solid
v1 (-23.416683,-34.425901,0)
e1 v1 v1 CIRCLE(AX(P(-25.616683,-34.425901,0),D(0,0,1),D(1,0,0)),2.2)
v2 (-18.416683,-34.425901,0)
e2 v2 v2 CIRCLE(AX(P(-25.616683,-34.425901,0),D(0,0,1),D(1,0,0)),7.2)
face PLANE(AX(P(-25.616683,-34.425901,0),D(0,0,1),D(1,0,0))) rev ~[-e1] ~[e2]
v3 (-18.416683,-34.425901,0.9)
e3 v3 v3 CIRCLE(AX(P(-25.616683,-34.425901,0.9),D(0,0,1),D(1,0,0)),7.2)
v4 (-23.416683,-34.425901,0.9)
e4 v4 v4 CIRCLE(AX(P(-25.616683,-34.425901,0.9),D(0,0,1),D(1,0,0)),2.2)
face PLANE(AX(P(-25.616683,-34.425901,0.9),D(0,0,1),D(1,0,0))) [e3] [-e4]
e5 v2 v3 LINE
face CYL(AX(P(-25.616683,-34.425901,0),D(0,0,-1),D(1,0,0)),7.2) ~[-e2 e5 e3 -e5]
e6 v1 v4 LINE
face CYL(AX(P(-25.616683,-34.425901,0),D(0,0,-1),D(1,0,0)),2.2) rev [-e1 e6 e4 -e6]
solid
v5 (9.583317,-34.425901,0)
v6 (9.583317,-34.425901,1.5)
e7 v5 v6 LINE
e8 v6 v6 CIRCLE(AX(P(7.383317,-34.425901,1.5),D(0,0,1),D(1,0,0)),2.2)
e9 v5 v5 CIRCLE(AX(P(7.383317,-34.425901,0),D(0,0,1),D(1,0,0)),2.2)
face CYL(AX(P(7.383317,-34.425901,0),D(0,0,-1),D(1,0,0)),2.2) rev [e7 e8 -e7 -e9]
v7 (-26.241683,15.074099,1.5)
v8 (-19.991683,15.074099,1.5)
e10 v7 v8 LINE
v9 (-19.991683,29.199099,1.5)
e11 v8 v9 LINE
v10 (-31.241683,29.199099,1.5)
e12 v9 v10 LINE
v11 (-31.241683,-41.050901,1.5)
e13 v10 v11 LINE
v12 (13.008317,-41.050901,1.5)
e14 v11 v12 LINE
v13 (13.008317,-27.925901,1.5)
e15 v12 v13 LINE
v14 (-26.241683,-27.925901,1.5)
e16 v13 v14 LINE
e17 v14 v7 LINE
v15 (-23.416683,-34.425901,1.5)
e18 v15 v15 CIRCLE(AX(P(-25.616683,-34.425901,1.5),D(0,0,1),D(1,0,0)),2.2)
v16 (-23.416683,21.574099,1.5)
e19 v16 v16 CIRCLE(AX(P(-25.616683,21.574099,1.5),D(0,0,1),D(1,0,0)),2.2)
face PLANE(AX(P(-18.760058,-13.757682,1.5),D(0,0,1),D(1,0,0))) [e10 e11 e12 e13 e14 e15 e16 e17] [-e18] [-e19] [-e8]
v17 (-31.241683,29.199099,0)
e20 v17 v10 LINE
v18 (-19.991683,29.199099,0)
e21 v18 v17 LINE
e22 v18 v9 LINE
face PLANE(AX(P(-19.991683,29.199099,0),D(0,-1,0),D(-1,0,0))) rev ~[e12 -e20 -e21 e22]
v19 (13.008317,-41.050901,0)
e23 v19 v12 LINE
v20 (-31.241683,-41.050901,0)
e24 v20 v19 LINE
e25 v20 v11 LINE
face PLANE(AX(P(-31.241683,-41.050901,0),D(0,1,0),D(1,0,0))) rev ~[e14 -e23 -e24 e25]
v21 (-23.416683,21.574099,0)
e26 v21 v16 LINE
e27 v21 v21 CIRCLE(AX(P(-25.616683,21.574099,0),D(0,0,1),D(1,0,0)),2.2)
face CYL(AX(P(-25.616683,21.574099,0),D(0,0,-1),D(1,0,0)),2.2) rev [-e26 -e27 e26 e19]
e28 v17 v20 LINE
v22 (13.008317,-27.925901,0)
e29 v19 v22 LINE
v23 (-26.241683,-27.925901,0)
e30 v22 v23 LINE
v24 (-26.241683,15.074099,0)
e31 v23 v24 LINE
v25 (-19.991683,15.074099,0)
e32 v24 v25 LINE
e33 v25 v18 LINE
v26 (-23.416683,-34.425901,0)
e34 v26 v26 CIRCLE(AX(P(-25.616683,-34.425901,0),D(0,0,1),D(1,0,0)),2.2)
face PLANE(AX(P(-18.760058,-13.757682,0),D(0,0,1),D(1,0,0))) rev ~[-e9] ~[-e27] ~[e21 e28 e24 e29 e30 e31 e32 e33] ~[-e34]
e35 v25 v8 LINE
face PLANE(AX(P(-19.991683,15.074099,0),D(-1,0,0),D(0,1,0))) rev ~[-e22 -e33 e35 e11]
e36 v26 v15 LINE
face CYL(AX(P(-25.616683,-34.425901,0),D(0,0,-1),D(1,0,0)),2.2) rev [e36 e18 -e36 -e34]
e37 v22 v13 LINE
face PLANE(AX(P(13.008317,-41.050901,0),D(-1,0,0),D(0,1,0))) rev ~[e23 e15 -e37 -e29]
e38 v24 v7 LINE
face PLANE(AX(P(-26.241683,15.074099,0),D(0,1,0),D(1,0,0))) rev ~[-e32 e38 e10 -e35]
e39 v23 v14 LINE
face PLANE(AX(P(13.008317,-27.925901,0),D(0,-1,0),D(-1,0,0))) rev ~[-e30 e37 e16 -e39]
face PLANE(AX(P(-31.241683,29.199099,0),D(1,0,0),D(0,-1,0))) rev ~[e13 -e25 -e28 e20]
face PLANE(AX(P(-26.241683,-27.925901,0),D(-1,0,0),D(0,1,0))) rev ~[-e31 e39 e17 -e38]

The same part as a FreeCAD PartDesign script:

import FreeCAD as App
import Part
import Sketcher

doc = App.newDocument("Part")
body = doc.addObject("PartDesign::Body", "Body")

# Sketch on XY plane
sketch1 = body.newObject("Sketcher::SketchObject", "Sketch")
sketch1.AttachmentSupport = (doc.getObject("XY_Plane"), [""])
sketch1.MapMode = "FlatFace"
sketch1.addGeometry([
    Part.LineSegment(App.Vector(-20, 29.2, 0), App.Vector(-31.2, 29.2, 0)),  # 0
    Part.LineSegment(App.Vector(-31.2, 29.2, 0), App.Vector(-31.2, -41.1, 0)),  # 1
    Part.LineSegment(App.Vector(-31.2, -41.1, 0), App.Vector(13, -41.1, 0)),  # 2
    Part.LineSegment(App.Vector(13, -41.1, 0), App.Vector(13, -27.9, 0)),  # 3
    Part.LineSegment(App.Vector(13, -27.9, 0), App.Vector(-26.2, -27.9, 0)),  # 4
    Part.LineSegment(App.Vector(-26.2, -27.9, 0), App.Vector(-26.2, 15.1, 0)),  # 5
    Part.LineSegment(App.Vector(-26.2, 15.1, 0), App.Vector(-20, 15.1, 0)),  # 6
    Part.LineSegment(App.Vector(-20, 15.1, 0), App.Vector(-20, 29.2, 0)),  # 7
    Part.Circle(App.Vector(-25.6, -34.4, 0), App.Vector(0, 0, 1), 2.2),  # 8
    Part.Circle(App.Vector(7.4, -34.4, 0), App.Vector(0, 0, 1), 2.2),  # 9
    Part.Circle(App.Vector(-25.6, 21.6, 0), App.Vector(0, 0, 1), 2.2),  # 10
], False)
sketch1.addConstraint([
    Sketcher.Constraint("Coincident", 0, 2, 1, 1),
    Sketcher.Constraint("Coincident", 1, 2, 2, 1),
    Sketcher.Constraint("Coincident", 2, 2, 3, 1),
    Sketcher.Constraint("Coincident", 3, 2, 4, 1),
    Sketcher.Constraint("Coincident", 4, 2, 5, 1),
    Sketcher.Constraint("Coincident", 5, 2, 6, 1),
    Sketcher.Constraint("Coincident", 6, 2, 7, 1),
    Sketcher.Constraint("Coincident", 7, 2, 0, 1),
    Sketcher.Constraint("Horizontal", 0),
    Sketcher.Constraint("Vertical", 1),
    Sketcher.Constraint("Horizontal", 2),
    Sketcher.Constraint("Vertical", 3),
    Sketcher.Constraint("Horizontal", 4),
    Sketcher.Constraint("Vertical", 5),
    Sketcher.Constraint("Horizontal", 6),
    Sketcher.Constraint("Vertical", 7),
    Sketcher.Constraint("Equal", 8, 9),
    Sketcher.Constraint("Equal", 9, 10),
    Sketcher.Constraint("Horizontal", 8, 3, 9, 3),
    Sketcher.Constraint("Vertical", 8, 3, 10, 3),
    Sketcher.Constraint("Diameter", 8, 4.4),
    Sketcher.Constraint("DistanceY", 5, 1, 5, 2, 43.0),
    Sketcher.Constraint("DistanceX", 8, 3, 9, 3, 33.0),
    Sketcher.Constraint("DistanceY", 8, 3, 10, 3, 56.0),
    Sketcher.Constraint("DistanceX", 1, 2, 4, 2, 5.0),
    Sketcher.Constraint("DistanceX", 0, 2, 0, 1, 11.25),
    Sketcher.Constraint("DistanceX", 2, 1, 2, 2, 44.25),
    Sketcher.Constraint("DistanceY", 1, 2, 1, 1, 70.25),
    Sketcher.Constraint("DistanceY", 9, 3, 3, 2, 6.5),
    Sketcher.Constraint("DistanceY", 3, 1, 3, 2, 13.125),
    Sketcher.Constraint("DistanceX", 0, 2, 10, 3, 5.625),
    Sketcher.Constraint("DistanceY", 8, 3, -1, 1, 34.425901),
    Sketcher.Constraint("DistanceX", 8, 3, -1, 1, 25.616683),
])
pad1 = body.newObject("PartDesign::Pad", "Pad")
pad1.Profile = sketch1
pad1.Length = 1.5
body2 = doc.addObject("PartDesign::Body", "Body001")

# Sketch on XY plane
sketch2 = body2.newObject("Sketcher::SketchObject", "Sketch001")
sketch2.AttachmentSupport = (doc.getObject("XY_Plane001"), [""])
sketch2.MapMode = "FlatFace"
sketch2.addGeometry([
    Part.Circle(App.Vector(-25.6, -34.4, 0), App.Vector(0, 0, 1), 7.2),
    Part.Circle(App.Vector(-25.6, -34.4, 0), App.Vector(0, 0, 1), 2.2),
], False)
sketch2.addConstraint([
    Sketcher.Constraint("Coincident", 1, 3, 0, 3),
    Sketcher.Constraint("Diameter", 0, 14.4),
    Sketcher.Constraint("Diameter", 1, 4.4),
    Sketcher.Constraint("DistanceY", 0, 3, -1, 1, 34.425901),
    Sketcher.Constraint("DistanceX", 0, 3, -1, 1, 25.616683),
])
pad2 = body2.newObject("PartDesign::Pad", "Pad001")
pad2.Profile = sketch2
pad2.Length = 0.9

doc.recompute()
